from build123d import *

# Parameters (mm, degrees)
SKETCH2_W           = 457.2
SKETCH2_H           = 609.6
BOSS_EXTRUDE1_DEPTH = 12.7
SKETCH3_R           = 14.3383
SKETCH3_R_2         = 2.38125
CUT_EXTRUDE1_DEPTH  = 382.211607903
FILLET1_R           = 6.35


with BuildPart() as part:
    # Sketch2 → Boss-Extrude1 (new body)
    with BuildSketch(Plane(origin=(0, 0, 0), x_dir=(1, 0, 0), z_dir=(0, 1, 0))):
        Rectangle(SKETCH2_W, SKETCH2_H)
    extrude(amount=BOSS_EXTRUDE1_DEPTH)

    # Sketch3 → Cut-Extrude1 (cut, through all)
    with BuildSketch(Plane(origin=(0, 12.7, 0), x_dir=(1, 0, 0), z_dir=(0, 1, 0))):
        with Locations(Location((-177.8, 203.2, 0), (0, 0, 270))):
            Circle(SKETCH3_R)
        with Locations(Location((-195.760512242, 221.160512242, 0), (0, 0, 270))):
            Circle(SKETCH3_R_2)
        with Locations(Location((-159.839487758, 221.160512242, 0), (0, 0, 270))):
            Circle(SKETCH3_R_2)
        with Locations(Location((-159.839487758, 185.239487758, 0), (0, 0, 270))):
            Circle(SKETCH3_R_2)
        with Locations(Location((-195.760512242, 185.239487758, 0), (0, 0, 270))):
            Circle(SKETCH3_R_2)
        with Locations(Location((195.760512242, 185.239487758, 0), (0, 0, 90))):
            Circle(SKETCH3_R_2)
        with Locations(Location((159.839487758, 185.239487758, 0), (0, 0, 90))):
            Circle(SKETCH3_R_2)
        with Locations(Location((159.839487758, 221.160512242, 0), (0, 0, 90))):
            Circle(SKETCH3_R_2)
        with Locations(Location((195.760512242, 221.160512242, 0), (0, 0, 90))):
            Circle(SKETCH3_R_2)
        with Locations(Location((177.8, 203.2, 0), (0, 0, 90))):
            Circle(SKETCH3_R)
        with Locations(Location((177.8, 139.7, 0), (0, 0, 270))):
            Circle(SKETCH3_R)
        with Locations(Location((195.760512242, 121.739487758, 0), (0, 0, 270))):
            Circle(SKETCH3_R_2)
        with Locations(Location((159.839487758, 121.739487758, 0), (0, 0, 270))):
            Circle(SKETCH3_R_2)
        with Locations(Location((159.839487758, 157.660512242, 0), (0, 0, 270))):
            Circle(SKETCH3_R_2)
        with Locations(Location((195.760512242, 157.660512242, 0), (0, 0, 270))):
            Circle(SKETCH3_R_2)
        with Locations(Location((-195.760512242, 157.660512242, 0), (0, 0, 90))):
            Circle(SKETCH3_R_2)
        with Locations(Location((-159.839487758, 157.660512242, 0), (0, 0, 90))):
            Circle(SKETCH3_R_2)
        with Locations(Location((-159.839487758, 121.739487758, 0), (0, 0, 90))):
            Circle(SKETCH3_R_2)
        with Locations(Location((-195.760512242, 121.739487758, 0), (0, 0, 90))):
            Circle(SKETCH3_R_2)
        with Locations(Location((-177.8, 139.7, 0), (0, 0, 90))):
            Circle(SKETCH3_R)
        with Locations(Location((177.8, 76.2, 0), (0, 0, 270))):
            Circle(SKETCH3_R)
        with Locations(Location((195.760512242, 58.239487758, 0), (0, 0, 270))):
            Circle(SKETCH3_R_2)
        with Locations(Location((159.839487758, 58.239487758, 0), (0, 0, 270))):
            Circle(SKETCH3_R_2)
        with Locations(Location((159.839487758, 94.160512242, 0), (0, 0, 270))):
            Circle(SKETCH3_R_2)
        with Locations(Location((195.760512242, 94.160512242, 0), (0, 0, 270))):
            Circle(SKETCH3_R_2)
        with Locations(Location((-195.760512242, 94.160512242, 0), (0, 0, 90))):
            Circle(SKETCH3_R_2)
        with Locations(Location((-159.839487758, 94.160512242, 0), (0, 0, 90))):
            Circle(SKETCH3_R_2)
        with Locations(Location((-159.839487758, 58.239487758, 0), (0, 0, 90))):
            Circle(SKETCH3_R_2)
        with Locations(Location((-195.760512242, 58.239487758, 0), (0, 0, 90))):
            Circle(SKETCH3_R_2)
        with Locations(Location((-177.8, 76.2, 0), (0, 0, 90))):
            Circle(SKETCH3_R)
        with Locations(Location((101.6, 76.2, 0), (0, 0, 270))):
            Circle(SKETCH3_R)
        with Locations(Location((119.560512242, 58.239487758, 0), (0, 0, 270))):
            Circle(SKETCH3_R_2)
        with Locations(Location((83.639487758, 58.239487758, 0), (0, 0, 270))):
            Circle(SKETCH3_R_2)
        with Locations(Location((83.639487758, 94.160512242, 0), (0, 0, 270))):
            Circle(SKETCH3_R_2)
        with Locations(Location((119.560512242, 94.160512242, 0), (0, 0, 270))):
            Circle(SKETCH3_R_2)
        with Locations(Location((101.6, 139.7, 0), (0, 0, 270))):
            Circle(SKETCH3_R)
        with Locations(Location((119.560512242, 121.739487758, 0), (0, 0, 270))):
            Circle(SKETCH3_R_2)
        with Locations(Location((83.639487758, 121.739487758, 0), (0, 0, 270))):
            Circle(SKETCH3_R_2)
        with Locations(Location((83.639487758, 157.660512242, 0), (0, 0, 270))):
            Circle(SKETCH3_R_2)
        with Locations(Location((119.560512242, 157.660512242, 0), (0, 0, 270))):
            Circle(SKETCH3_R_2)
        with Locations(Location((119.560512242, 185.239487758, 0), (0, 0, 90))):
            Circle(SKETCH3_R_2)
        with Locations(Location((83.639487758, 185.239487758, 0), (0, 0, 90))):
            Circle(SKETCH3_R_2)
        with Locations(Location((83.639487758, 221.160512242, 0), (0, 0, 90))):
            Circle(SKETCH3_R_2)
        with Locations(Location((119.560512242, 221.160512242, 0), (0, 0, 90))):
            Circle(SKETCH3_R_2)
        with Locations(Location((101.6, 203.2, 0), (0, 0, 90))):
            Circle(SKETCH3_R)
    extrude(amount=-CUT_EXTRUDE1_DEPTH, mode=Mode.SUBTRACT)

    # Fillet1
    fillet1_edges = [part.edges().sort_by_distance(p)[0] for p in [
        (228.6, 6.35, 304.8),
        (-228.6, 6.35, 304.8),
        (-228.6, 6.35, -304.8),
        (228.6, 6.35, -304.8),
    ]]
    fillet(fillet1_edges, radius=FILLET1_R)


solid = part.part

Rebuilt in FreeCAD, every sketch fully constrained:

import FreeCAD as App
import Part
import Sketcher
from FreeCAD import Vector
Q = App.Units.Quantity


def edges_at(feature, points):
    """Names of the edges that pass closest to the given points."""
    edges = feature.Shape.Edges
    near = lambda p: min(range(len(edges)), key=lambda i: edges[i].distToShape(Part.Vertex(*p))[0])
    return sorted({f"Edge{near(p) + 1}" for p in points})

doc = App.newDocument("Part")
body = doc.addObject("PartDesign::Body", "Body")

# Sketch on XZ plane
sketch1 = body.newObject("Sketcher::SketchObject", "Sketch")
sketch1.AttachmentSupport = (doc.getObject("XZ_Plane"), [""])
sketch1.MapMode = "FlatFace"
sketch1.addGeometry(Part.LineSegment(Vector(-229, -305, 0), Vector(-229, 305, 0)), False)
sketch1.addGeometry(Part.LineSegment(Vector(-229, 305, 0), Vector(229, 305, 0)), False)
sketch1.addGeometry(Part.LineSegment(Vector(229, 305, 0), Vector(229, -305, 0)), False)
sketch1.addGeometry(Part.LineSegment(Vector(229, -305, 0), Vector(-229, -305, 0)), False)
sketch1.addConstraint(Sketcher.Constraint("Coincident", 0, 2, 1, 1))
sketch1.addConstraint(Sketcher.Constraint("Coincident", 1, 2, 2, 1))
sketch1.addConstraint(Sketcher.Constraint("Coincident", 2, 2, 3, 1))
sketch1.addConstraint(Sketcher.Constraint("Coincident", 3, 2, 0, 1))
sketch1.addConstraint(Sketcher.Constraint("Vertical", 0))
sketch1.addConstraint(Sketcher.Constraint("Horizontal", 1))
sketch1.addConstraint(Sketcher.Constraint("Vertical", 2))
sketch1.addConstraint(Sketcher.Constraint("Horizontal", 3))
sketch1.addConstraint(Sketcher.Constraint("Symmetric", 0, 2, 2, 2, -1, 1))
sketch1.addConstraint(Sketcher.Constraint("DistanceX", 1, 1, 1, 2, Q("18 in")))
sketch1.addConstraint(Sketcher.Constraint("DistanceY", 0, 1, 0, 2, Q("24 in")))
pad1 = body.newObject("PartDesign::Pad", "Pad")
pad1.Profile = sketch1
pad1.Length = Q("0.5 in")
pad1.Reversed = True

# Sketch on XZ plane
sketch2 = body.newObject("Sketcher::SketchObject", "Sketch001")
sketch2.AttachmentSupport = (doc.getObject("XZ_Plane"), [""])
sketch2.MapMode = "FlatFace"
sketch2.AttachmentOffset = App.Placement(Vector(0, 0, -0.5 * 25.4), App.Rotation())
sketch2.addGeometry(Part.Circle(Vector(-177.8, -203.2, 0), Vector(0, 0, 1), 14.3), False)
sketch2.addGeometry(Part.Circle(Vector(-195.8, -221.2, 0), Vector(0, 0, 1), 2.4), False)
sketch2.addGeometry(Part.Circle(Vector(-159.8, -221.2, 0), Vector(0, 0, 1), 2.4), False)
sketch2.addGeometry(Part.Circle(Vector(-159.8, -185.2, 0), Vector(0, 0, 1), 2.4), False)
sketch2.addGeometry(Part.Circle(Vector(-195.8, -185.2, 0), Vector(0, 0, 1), 2.4), False)
sketch2.addGeometry(Part.Circle(Vector(195.8, -185.2, 0), Vector(0, 0, 1), 2.4), False)
sketch2.addGeometry(Part.Circle(Vector(159.8, -185.2, 0), Vector(0, 0, 1), 2.4), False)
sketch2.addGeometry(Part.Circle(Vector(159.8, -221.2, 0), Vector(0, 0, 1), 2.4), False)
sketch2.addGeometry(Part.Circle(Vector(195.8, -221.2, 0), Vector(0, 0, 1), 2.4), False)
sketch2.addGeometry(Part.Circle(Vector(177.8, -203.2, 0), Vector(0, 0, 1), 14.3), False)
sketch2.addGeometry(Part.Circle(Vector(177.8, -139.7, 0), Vector(0, 0, 1), 14.3), False)
sketch2.addGeometry(Part.Circle(Vector(195.8, -121.7, 0), Vector(0, 0, 1), 2.4), False)
sketch2.addGeometry(Part.Circle(Vector(159.8, -121.7, 0), Vector(0, 0, 1), 2.4), False)
sketch2.addGeometry(Part.Circle(Vector(159.8, -157.7, 0), Vector(0, 0, 1), 2.4), False)
sketch2.addGeometry(Part.Circle(Vector(195.8, -157.7, 0), Vector(0, 0, 1), 2.4), False)
sketch2.addGeometry(Part.Circle(Vector(-195.8, -157.7, 0), Vector(0, 0, 1), 2.4), False)
sketch2.addGeometry(Part.Circle(Vector(-159.8, -157.7, 0), Vector(0, 0, 1), 2.4), False)
sketch2.addGeometry(Part.Circle(Vector(-159.8, -121.7, 0), Vector(0, 0, 1), 2.4), False)
sketch2.addGeometry(Part.Circle(Vector(-195.8, -121.7, 0), Vector(0, 0, 1), 2.4), False)
sketch2.addGeometry(Part.Circle(Vector(-177.8, -139.7, 0), Vector(0, 0, 1), 14.3), False)
sketch2.addGeometry(Part.Circle(Vector(177.8, -76.2, 0), Vector(0, 0, 1), 14.3), False)
sketch2.addGeometry(Part.Circle(Vector(195.8, -58.2, 0), Vector(0, 0, 1), 2.4), False)
sketch2.addGeometry(Part.Circle(Vector(159.8, -58.2, 0), Vector(0, 0, 1), 2.4), False)
sketch2.addGeometry(Part.Circle(Vector(159.8, -94.2, 0), Vector(0, 0, 1), 2.4), False)
sketch2.addGeometry(Part.Circle(Vector(195.8, -94.2, 0), Vector(0, 0, 1), 2.4), False)
sketch2.addGeometry(Part.Circle(Vector(-195.8, -94.2, 0), Vector(0, 0, 1), 2.4), False)
sketch2.addGeometry(Part.Circle(Vector(-159.8, -94.2, 0), Vector(0, 0, 1), 2.4), False)
sketch2.addGeometry(Part.Circle(Vector(-159.8, -58.2, 0), Vector(0, 0, 1), 2.4), False)
sketch2.addGeometry(Part.Circle(Vector(-195.8, -58.2, 0), Vector(0, 0, 1), 2.4), False)
sketch2.addGeometry(Part.Circle(Vector(-177.8, -76.2, 0), Vector(0, 0, 1), 14.3), False)
sketch2.addGeometry(Part.Circle(Vector(101.6, -76.2, 0), Vector(0, 0, 1), 14.3), False)
sketch2.addGeometry(Part.Circle(Vector(119.6, -58.2, 0), Vector(0, 0, 1), 2.4), False)
sketch2.addGeometry(Part.Circle(Vector(83.6, -58.2, 0), Vector(0, 0, 1), 2.4), False)
sketch2.addGeometry(Part.Circle(Vector(83.6, -94.2, 0), Vector(0, 0, 1), 2.4), False)
sketch2.addGeometry(Part.Circle(Vector(119.6, -94.2, 0), Vector(0, 0, 1), 2.4), False)
sketch2.addGeometry(Part.Circle(Vector(101.6, -139.7, 0), Vector(0, 0, 1), 14.3), False)
sketch2.addGeometry(Part.Circle(Vector(119.6, -121.7, 0), Vector(0, 0, 1), 2.4), False)
sketch2.addGeometry(Part.Circle(Vector(83.6, -121.7, 0), Vector(0, 0, 1), 2.4), False)
sketch2.addGeometry(Part.Circle(Vector(83.6, -157.7, 0), Vector(0, 0, 1), 2.4), False)
sketch2.addGeometry(Part.Circle(Vector(119.6, -157.7, 0), Vector(0, 0, 1), 2.4), False)
sketch2.addGeometry(Part.Circle(Vector(119.6, -185.2, 0), Vector(0, 0, 1), 2.4), False)
sketch2.addGeometry(Part.Circle(Vector(83.6, -185.2, 0), Vector(0, 0, 1), 2.4), False)
sketch2.addGeometry(Part.Circle(Vector(83.6, -221.2, 0), Vector(0, 0, 1), 2.4), False)
sketch2.addGeometry(Part.Circle(Vector(119.6, -221.2, 0), Vector(0, 0, 1), 2.4), False)
sketch2.addGeometry(Part.Circle(Vector(101.6, -203.2, 0), Vector(0, 0, 1), 14.3), False)
sketch2.addConstraint(Sketcher.Constraint("Equal", 1, 2))
sketch2.addConstraint(Sketcher.Constraint("Equal", 2, 3))
sketch2.addConstraint(Sketcher.Constraint("Equal", 3, 4))
sketch2.addConstraint(Sketcher.Constraint("Equal", 4, 5))
sketch2.addConstraint(Sketcher.Constraint("Equal", 5, 6))
sketch2.addConstraint(Sketcher.Constraint("Equal", 6, 7))
sketch2.addConstraint(Sketcher.Constraint("Equal", 7, 8))
sketch2.addConstraint(Sketcher.Constraint("Equal", 0, 9))
sketch2.addConstraint(Sketcher.Constraint("Equal", 9, 10))
sketch2.addConstraint(Sketcher.Constraint("Equal", 8, 11))
sketch2.addConstraint(Sketcher.Constraint("Equal", 11, 12))
sketch2.addConstraint(Sketcher.Constraint("Equal", 12, 13))
sketch2.addConstraint(Sketcher.Constraint("Equal", 13, 14))
sketch2.addConstraint(Sketcher.Constraint("Equal", 14, 15))
sketch2.addConstraint(Sketcher.Constraint("Equal", 15, 16))
sketch2.addConstraint(Sketcher.Constraint("Equal", 16, 17))
sketch2.addConstraint(Sketcher.Constraint("Equal", 17, 18))
sketch2.addConstraint(Sketcher.Constraint("Equal", 10, 19))
sketch2.addConstraint(Sketcher.Constraint("Equal", 19, 20))
sketch2.addConstraint(Sketcher.Constraint("Equal", 18, 21))
sketch2.addConstraint(Sketcher.Constraint("Equal", 21, 22))
sketch2.addConstraint(Sketcher.Constraint("Equal", 22, 23))
sketch2.addConstraint(Sketcher.Constraint("Equal", 23, 24))
sketch2.addConstraint(Sketcher.Constraint("Equal", 24, 25))
sketch2.addConstraint(Sketcher.Constraint("Equal", 25, 26))
sketch2.addConstraint(Sketcher.Constraint("Equal", 26, 27))
sketch2.addConstraint(Sketcher.Constraint("Equal", 27, 28))
sketch2.addConstraint(Sketcher.Constraint("Equal", 20, 29))
sketch2.addConstraint(Sketcher.Constraint("Equal", 29, 30))
sketch2.addConstraint(Sketcher.Constraint("Equal", 28, 31))
sketch2.addConstraint(Sketcher.Constraint("Equal", 31, 32))
sketch2.addConstraint(Sketcher.Constraint("Equal", 32, 33))
sketch2.addConstraint(Sketcher.Constraint("Equal", 33, 34))
sketch2.addConstraint(Sketcher.Constraint("Equal", 30, 35))
sketch2.addConstraint(Sketcher.Constraint("Equal", 34, 36))
sketch2.addConstraint(Sketcher.Constraint("Equal", 36, 37))
sketch2.addConstraint(Sketcher.Constraint("Equal", 37, 38))
sketch2.addConstraint(Sketcher.Constraint("Equal", 38, 39))
sketch2.addConstraint(Sketcher.Constraint("Equal", 39, 40))
sketch2.addConstraint(Sketcher.Constraint("Equal", 40, 41))
sketch2.addConstraint(Sketcher.Constraint("Equal", 41, 42))
sketch2.addConstraint(Sketcher.Constraint("Equal", 42, 43))
sketch2.addConstraint(Sketcher.Constraint("Equal", 35, 44))
sketch2.addConstraint(Sketcher.Constraint("Symmetric", 4, 3, 5, 3, -2))
sketch2.addConstraint(Sketcher.Constraint("Symmetric", 3, 3, 6, 3, -2))
sketch2.addConstraint(Sketcher.Constraint("Symmetric", 2, 3, 7, 3, -2))
sketch2.addConstraint(Sketcher.Constraint("Symmetric", 1, 3, 8, 3, -2))
sketch2.addConstraint(Sketcher.Constraint("Symmetric", 0, 3, 9, 3, -2))
sketch2.addConstraint(Sketcher.Constraint("Symmetric", 14, 3, 15, 3, -2))
sketch2.addConstraint(Sketcher.Constraint("Symmetric", 13, 3, 16, 3, -2))
sketch2.addConstraint(Sketcher.Constraint("Symmetric", 12, 3, 17, 3, -2))
sketch2.addConstraint(Sketcher.Constraint("Symmetric", 11, 3, 18, 3, -2))
sketch2.addConstraint(Sketcher.Constraint("Symmetric", 10, 3, 19, 3, -2))
sketch2.addConstraint(Sketcher.Constraint("Symmetric", 24, 3, 25, 3, -2))
sketch2.addConstraint(Sketcher.Constraint("Symmetric", 23, 3, 26, 3, -2))
sketch2.addConstraint(Sketcher.Constraint("Symmetric", 22, 3, 27, 3, -2))
sketch2.addConstraint(Sketcher.Constraint("Symmetric", 21, 3, 28, 3, -2))
sketch2.addConstraint(Sketcher.Constraint("Symmetric", 20, 3, 29, 3, -2))
sketch2.addConstraint(Sketcher.Constraint("Horizontal", 1, 3, 2, 3))
sketch2.addConstraint(Sketcher.Constraint("Horizontal", 3, 3, 4, 3))
sketch2.addConstraint(Sketcher.Constraint("Horizontal", 11, 3, 12, 3))
sketch2.addConstraint(Sketcher.Constraint("Horizontal", 13, 3, 14, 3))
sketch2.addConstraint(Sketcher.Constraint("Horizontal", 21, 3, 22, 3))
sketch2.addConstraint(Sketcher.Constraint("Horizontal", 23, 3, 24, 3))
sketch2.addConstraint(Sketcher.Constraint("Horizontal", 29, 3, 30, 3))
sketch2.addConstraint(Sketcher.Constraint("Horizontal", 28, 3, 31, 3))
sketch2.addConstraint(Sketcher.Constraint("Horizontal", 31, 3, 32, 3))
sketch2.addConstraint(Sketcher.Constraint("Horizontal", 26, 3, 33, 3))
sketch2.addConstraint(Sketcher.Constraint("Horizontal", 33, 3, 34, 3))
sketch2.addConstraint(Sketcher.Constraint("Horizontal", 19, 3, 35, 3))
sketch2.addConstraint(Sketcher.Constraint("Horizontal", 18, 3, 36, 3))
sketch2.addConstraint(Sketcher.Constraint("Horizontal", 36, 3, 37, 3))
sketch2.addConstraint(Sketcher.Constraint("Horizontal", 16, 3, 38, 3))
sketch2.addConstraint(Sketcher.Constraint("Horizontal", 38, 3, 39, 3))
sketch2.addConstraint(Sketcher.Constraint("Horizontal", 6, 3, 40, 3))
sketch2.addConstraint(Sketcher.Constraint("Horizontal", 40, 3, 41, 3))
sketch2.addConstraint(Sketcher.Constraint("Horizontal", 8, 3, 42, 3))
sketch2.addConstraint(Sketcher.Constraint("Horizontal", 42, 3, 43, 3))
sketch2.addConstraint(Sketcher.Constraint("Horizontal", 9, 3, 44, 3))
sketch2.addConstraint(Sketcher.Constraint("Vertical", 2, 3, 3, 3))
sketch2.addConstraint(Sketcher.Constraint("Vertical", 1, 3, 4, 3))
sketch2.addConstraint(Sketcher.Constraint("Vertical", 9, 3, 10, 3))
sketch2.addConstraint(Sketcher.Constraint("Vertical", 8, 3, 11, 3))
sketch2.addConstraint(Sketcher.Constraint("Vertical", 7, 3, 12, 3))
sketch2.addConstraint(Sketcher.Constraint("Vertical", 12, 3, 13, 3))
sketch2.addConstraint(Sketcher.Constraint("Vertical", 11, 3, 14, 3))
sketch2.addConstraint(Sketcher.Constraint("Vertical", 10, 3, 20, 3))
sketch2.addConstraint(Sketcher.Constraint("Vertical", 14, 3, 21, 3))
sketch2.addConstraint(Sketcher.Constraint("Vertical", 13, 3, 22, 3))
sketch2.addConstraint(Sketcher.Constraint("Vertical", 22, 3, 23, 3))
sketch2.addConstraint(Sketcher.Constraint("Vertical", 21, 3, 24, 3))
sketch2.addConstraint(Sketcher.Constraint("Vertical", 32, 3, 33, 3))
sketch2.addConstraint(Sketcher.Constraint("Vertical", 31, 3, 34, 3))
sketch2.addConstraint(Sketcher.Constraint("Vertical", 30, 3, 35, 3))
sketch2.addConstraint(Sketcher.Constraint("Vertical", 34, 3, 36, 3))
sketch2.addConstraint(Sketcher.Constraint("Vertical", 33, 3, 37, 3))
sketch2.addConstraint(Sketcher.Constraint("Vertical", 37, 3, 38, 3))
sketch2.addConstraint(Sketcher.Constraint("Vertical", 36, 3, 39, 3))
sketch2.addConstraint(Sketcher.Constraint("Vertical", 39, 3, 40, 3))
sketch2.addConstraint(Sketcher.Constraint("Vertical", 38, 3, 41, 3))
sketch2.addConstraint(Sketcher.Constraint("Vertical", 41, 3, 42, 3))
sketch2.addConstraint(Sketcher.Constraint("Vertical", 40, 3, 43, 3))
sketch2.addConstraint(Sketcher.Constraint("Vertical", 35, 3, 44, 3))
sketch2.addConstraint(Sketcher.Constraint("Diameter", 0, Q("1.129 in")))
sketch2.addConstraint(Sketcher.Constraint("Diameter", 1, Q("0.1875 in")))
sketch2.addConstraint(Sketcher.Constraint("DistanceX", 0, 3, -1, 1, Q("7 in")))
sketch2.addConstraint(Sketcher.Constraint("DistanceY", 0, 3, -1, 1, Q("8 in")))
sketch2.addConstraint(Sketcher.Constraint("DistanceY", 20, 3, -1, 1, Q("3 in")))
sketch2.addConstraint(Sketcher.Constraint("DistanceX", -1, 1, 30, 3, Q("4 in")))
sketch2.addConstraint(Sketcher.Constraint("DistanceX", 3, 3, 5, 3, Q("14 in")))
sketch2.addConstraint(Sketcher.Constraint("DistanceX", 32, 3, 22, 3, Q("3 in")))
sketch2.addConstraint(Sketcher.Constraint("DistanceY", 10, 3, -1, 1, Q("5.5 in")))
sketch2.addConstraint(Sketcher.Constraint("DistanceY", 5, 3, 11, 3, Q("2.5 in")))
sketch2.addConstraint(Sketcher.Constraint("DistanceY", 1, 3, 15, 3, Q("2.5 in")))
sketch2.addConstraint(Sketcher.Constraint("DistanceY", 11, 3, 21, 3, Q("2.5 in")))
sketch2.addConstraint(Sketcher.Constraint("DistanceY", 15, 3, 25, 3, Q("2.5 in")))
sketch2.addConstraint(Sketcher.Constraint("DistanceX", 1, 3, -1, 1, Q("195.760512 mm")))
sketch2.addConstraint(Sketcher.Constraint("DistanceY", 1, 3, -1, 1, Q("221.160512 mm")))
sketch2.addConstraint(Sketcher.Constraint("DistanceY", 3, 3, -1, 1, Q("185.239488 mm")))
sketch2.addConstraint(Sketcher.Constraint("DistanceX", -1, 1, 31, 3, Q("119.560512 mm")))
pocket1 = body.newObject("PartDesign::Pocket", "Pocket")
pocket1.Profile = sketch2
pocket1.Type = "ThroughAll"
pocket1.Reversed = True
doc.recompute()

fillet = body.newObject("PartDesign::Fillet", "Fillet")
fillet.Base = (pocket1, edges_at(pocket1, [
    (228.6, 6.35, 304.8),
    (-228.6, 6.35, 304.8),
    (-228.6, 6.35, -304.8),
    (228.6, 6.35, -304.8),
]))
fillet.Radius = Q("0.25 in")

doc.recompute()
